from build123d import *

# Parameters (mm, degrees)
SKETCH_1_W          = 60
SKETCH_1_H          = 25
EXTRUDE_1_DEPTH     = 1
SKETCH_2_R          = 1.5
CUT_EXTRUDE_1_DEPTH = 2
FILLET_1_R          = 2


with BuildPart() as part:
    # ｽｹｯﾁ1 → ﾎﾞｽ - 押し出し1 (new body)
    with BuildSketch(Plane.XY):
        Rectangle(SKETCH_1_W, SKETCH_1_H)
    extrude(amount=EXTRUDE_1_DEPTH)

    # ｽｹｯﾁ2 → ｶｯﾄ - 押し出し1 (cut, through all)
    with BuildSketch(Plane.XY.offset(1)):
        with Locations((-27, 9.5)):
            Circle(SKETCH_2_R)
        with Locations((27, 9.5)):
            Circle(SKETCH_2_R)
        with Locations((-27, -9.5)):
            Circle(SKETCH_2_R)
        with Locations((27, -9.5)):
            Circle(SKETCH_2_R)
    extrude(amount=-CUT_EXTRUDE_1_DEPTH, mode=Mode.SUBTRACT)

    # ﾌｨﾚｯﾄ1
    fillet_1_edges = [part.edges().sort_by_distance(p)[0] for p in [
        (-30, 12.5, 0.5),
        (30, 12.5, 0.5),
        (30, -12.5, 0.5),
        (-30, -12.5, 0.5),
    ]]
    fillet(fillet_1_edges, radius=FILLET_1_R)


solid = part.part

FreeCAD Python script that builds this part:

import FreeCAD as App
import Part
import Sketcher
Q = App.Units.Quantity


def edges_at(feature, points):
    """Names of the edges that pass closest to the given points."""
    edges = feature.Shape.Edges
    near = lambda p: min(range(len(edges)), key=lambda i: edges[i].distToShape(Part.Vertex(*p))[0])
    return sorted({f"Edge{near(p) + 1}" for p in points})


def add_polygon(sketch, points):
    """Adds a closed chain of lines whose ends are joined by coincident constraints."""
    first, n = sketch.GeometryCount, len(points)
    for a, b in zip(points, points[1:] + points[:1]):
        sketch.addGeometry(Part.LineSegment(App.Vector(*a, 0), App.Vector(*b, 0)), False)
    for i in range(n):
        sketch.addConstraint(Sketcher.Constraint("Coincident", first + i, 2, first + (i + 1) % n, 1))

doc = App.newDocument("Part")
body = doc.addObject("PartDesign::Body", "Body")

sketch1 = body.newObject("Sketcher::SketchObject", "Sketch")
sketch1.AttachmentSupport = (doc.getObject("XY_Plane"), [""])
sketch1.MapMode = "FlatFace"
add_polygon(sketch1, [(-30, 12), (-30, -12), (30, -12), (30, 12)])
sketch1.addConstraint(Sketcher.Constraint("Vertical", 0))
sketch1.addConstraint(Sketcher.Constraint("Horizontal", 1))
sketch1.addConstraint(Sketcher.Constraint("Vertical", 2))
sketch1.addConstraint(Sketcher.Constraint("Horizontal", 3))
sketch1.addConstraint(Sketcher.Constraint("Symmetric", 0, 2, 2, 2, -1, 1))
sketch1.addConstraint(Sketcher.Constraint("DistanceX", 1, 1, 1, 2, Q("60 mm")))
sketch1.addConstraint(Sketcher.Constraint("DistanceY", 0, 2, 0, 1, Q("25 mm")))
pad1 = body.newObject("PartDesign::Pad", "Pad")
pad1.Profile = sketch1
pad1.Length = 1

sketch2 = body.newObject("Sketcher::SketchObject", "Sketch001")
sketch2.AttachmentSupport = (doc.getObject("XY_Plane"), [""])
sketch2.MapMode = "FlatFace"
sketch2.AttachmentOffset = App.Placement(App.Vector(0, 0, 1), App.Rotation())
sketch2.addGeometry(Part.Circle(App.Vector(-27, 9.5, 0), App.Vector(0, 0, 1), 1.5), False)
sketch2.addGeometry(Part.Circle(App.Vector(27, 9.5, 0), App.Vector(0, 0, 1), 1.5), False)
sketch2.addGeometry(Part.Circle(App.Vector(-27, -9.5, 0), App.Vector(0, 0, 1), 1.5), False)
sketch2.addGeometry(Part.Circle(App.Vector(27, -9.5, 0), App.Vector(0, 0, 1), 1.5), False)
sketch2.addConstraint(Sketcher.Constraint("Equal", 0, 1))
sketch2.addConstraint(Sketcher.Constraint("Equal", 1, 2))
sketch2.addConstraint(Sketcher.Constraint("Equal", 2, 3))
sketch2.addConstraint(Sketcher.Constraint("Symmetric", 1, 3, 2, 3, -1, 1))
sketch2.addConstraint(Sketcher.Constraint("Symmetric", 0, 3, 3, 3, -1, 1))
sketch2.addConstraint(Sketcher.Constraint("Symmetric", 0, 3, 1, 3, -2))
sketch2.addConstraint(Sketcher.Constraint("Diameter", 0, Q("3 mm")))
sketch2.addConstraint(Sketcher.Constraint("DistanceX", 0, 3, -1, 1, Q("27 mm")))
sketch2.addConstraint(Sketcher.Constraint("DistanceY", 2, 3, 0, 3, Q("19 mm")))
pocket1 = body.newObject("PartDesign::Pocket", "Pocket")
pocket1.Profile = sketch2
pocket1.Type = "ThroughAll"
doc.recompute()

fillet = body.newObject("PartDesign::Fillet", "Fillet")
fillet.Base = (pocket1, edges_at(pocket1, [
    (-30, 12.5, 0.5),
    (30, 12.5, 0.5),
    (30, -12.5, 0.5),
    (-30, -12.5, 0.5),
]))
fillet.Radius = 2

doc.recompute()
